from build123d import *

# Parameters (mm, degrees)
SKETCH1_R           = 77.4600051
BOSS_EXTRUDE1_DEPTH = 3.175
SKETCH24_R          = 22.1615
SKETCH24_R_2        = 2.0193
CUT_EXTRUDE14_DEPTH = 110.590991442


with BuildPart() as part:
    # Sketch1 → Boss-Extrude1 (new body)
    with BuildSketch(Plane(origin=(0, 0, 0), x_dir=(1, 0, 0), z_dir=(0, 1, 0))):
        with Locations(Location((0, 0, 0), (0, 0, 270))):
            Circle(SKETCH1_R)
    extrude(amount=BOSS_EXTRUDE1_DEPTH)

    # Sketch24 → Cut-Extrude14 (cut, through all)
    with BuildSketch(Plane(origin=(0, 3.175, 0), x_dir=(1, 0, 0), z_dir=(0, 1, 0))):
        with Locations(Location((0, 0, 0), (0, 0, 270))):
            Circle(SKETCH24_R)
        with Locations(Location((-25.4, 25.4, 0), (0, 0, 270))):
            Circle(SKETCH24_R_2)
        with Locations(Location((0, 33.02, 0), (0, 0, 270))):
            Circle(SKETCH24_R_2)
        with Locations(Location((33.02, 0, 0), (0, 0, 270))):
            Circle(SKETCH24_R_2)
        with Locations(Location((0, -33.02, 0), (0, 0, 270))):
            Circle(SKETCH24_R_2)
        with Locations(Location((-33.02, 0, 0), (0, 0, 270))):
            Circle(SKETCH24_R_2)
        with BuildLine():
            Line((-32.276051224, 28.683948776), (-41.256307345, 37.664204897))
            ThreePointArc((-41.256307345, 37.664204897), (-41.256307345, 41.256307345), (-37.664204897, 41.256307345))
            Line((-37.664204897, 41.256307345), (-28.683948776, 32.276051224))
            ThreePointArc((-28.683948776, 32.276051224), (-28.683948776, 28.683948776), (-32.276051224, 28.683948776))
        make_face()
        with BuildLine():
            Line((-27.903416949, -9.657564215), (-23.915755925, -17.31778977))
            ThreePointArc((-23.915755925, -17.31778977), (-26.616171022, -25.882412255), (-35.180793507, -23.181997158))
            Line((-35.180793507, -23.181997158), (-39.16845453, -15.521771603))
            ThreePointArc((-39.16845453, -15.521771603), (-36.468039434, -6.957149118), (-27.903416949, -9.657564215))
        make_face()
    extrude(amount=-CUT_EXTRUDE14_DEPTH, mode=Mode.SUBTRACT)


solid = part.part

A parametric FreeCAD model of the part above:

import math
import FreeCAD as App
import Part
import Sketcher
from FreeCAD import Vector
Q = App.Units.Quantity

doc = App.newDocument("Part")
params = doc.addObject("Spreadsheet::Sheet", "Params")
for row, (alias, value) in enumerate([
    ("pad1_length", "0.125 in"),
    ("sketch2_radius", "0.1 in"),
    ("sketch2_radius2", "0.25 in"),
    ("sketch2_diameter", "1.745 in"),
    ("sketch2_diameter2", "0.159 in"),
    ("sketch2_length", "0.5 in"),
], start=1):
    params.set(f"A{row}", alias)
    params.set(f"B{row}", "=" + value)
    params.setAlias(f"B{row}", alias)

body = doc.addObject("PartDesign::Body", "Body")

# Sketch on XZ plane
sketch1 = body.newObject("Sketcher::SketchObject", "Sketch")
sketch1.AttachmentSupport = (doc.getObject("XZ_Plane"), [""])
sketch1.MapMode = "FlatFace"
sketch1.addGeometry(Part.Circle(Vector(0, 0, 0), Vector(0, 0, 1), 77), False)
sketch1.addConstraint([
    Sketcher.Constraint("Coincident", 0, 3, -1, 1),
    Sketcher.Constraint("Diameter", 0, 154.92001),
])
pad1 = body.newObject("PartDesign::Pad", "Pad")
pad1.Profile = sketch1
pad1.setExpression("Length", "Params.pad1_length")
pad1.Reversed = True

# Sketch on XZ plane
sketch2 = body.newObject("Sketcher::SketchObject", "Sketch001")
sketch2.AttachmentSupport = (doc.getObject("XZ_Plane"), [""])
sketch2.MapMode = "FlatFace"
sketch2.AttachmentOffset = App.Placement(Vector(0, 0, -0.125 * 25.4), App.Rotation())
sketch2.addGeometry([
    Part.Circle(Vector(0, 0, 0), Vector(0, 0, 1), 22.2),  # 0
    Part.Circle(Vector(-25.4, -25.4, 0), Vector(0, 0, 1), 2),  # 1
    Part.Circle(Vector(0, -33, 0), Vector(0, 0, 1), 2),  # 2
    Part.Circle(Vector(33, 0, 0), Vector(0, 0, 1), 2),  # 3
    Part.Circle(Vector(0, 33, 0), Vector(0, 0, 1), 2),  # 4
    Part.Circle(Vector(-33, 0, 0), Vector(0, 0, 1), 2),  # 5
    Part.LineSegment(Vector(-41.3, -37.7, 0), Vector(-32.3, -28.7, 0)),  # 6
    Part.ArcOfCircle(Part.Circle(Vector(-30.5, -30.5, 0), Vector(0, 0, 1), 2.5), math.radians(-45), math.radians(135)),  # 7
    Part.LineSegment(Vector(-28.7, -32.3, 0), Vector(-37.7, -41.3, 0)),  # 8
    Part.ArcOfCircle(Part.Circle(Vector(-39.5, -39.5, 0), Vector(0, 0, 1), 2.5), math.radians(135), math.radians(315)),  # 9
    Part.LineSegment(Vector(-23.9, 17.3, 0), Vector(-27.9, 9.7, 0)),  # 10
    Part.ArcOfCircle(Part.Circle(Vector(-33.5, 12.6, 0), Vector(0, 0, 1), 6.3), math.radians(152), math.radians(333)),  # 11
    Part.LineSegment(Vector(-39.2, 15.5, 0), Vector(-35.2, 23.2, 0)),  # 12
    Part.ArcOfCircle(Part.Circle(Vector(-29.5, 20.2, 0), Vector(0, 0, 1), 6.3), math.radians(-27), math.radians(153)),  # 13
], False)
sketch2.addConstraint([
    Sketcher.Constraint("Tangent", 6, 2, 7, 2),
    Sketcher.Constraint("Tangent", 7, 1, 8, 1),
    Sketcher.Constraint("Tangent", 8, 2, 9, 2),
    Sketcher.Constraint("Tangent", 9, 1, 6, 1),
    Sketcher.Constraint("Tangent", 10, 2, 11, 2),
    Sketcher.Constraint("Tangent", 11, 1, 12, 1),
    Sketcher.Constraint("Tangent", 12, 2, 13, 2),
    Sketcher.Constraint("Tangent", 13, 1, 10, 1),
    Sketcher.Constraint("Coincident", 0, 3, -1, 1),
    Sketcher.Constraint("Equal", 1, 2),
    Sketcher.Constraint("Equal", 2, 3),
    Sketcher.Constraint("Equal", 3, 4),
    Sketcher.Constraint("Equal", 4, 5),
    Sketcher.Constraint("Equal", 7, 9),
    Sketcher.Constraint("Equal", 11, 13),
    Sketcher.Constraint("Symmetric", 2, 3, 4, 3, -1, 1),
    Sketcher.Constraint("Symmetric", 3, 3, 5, 3, -1, 1),
    Sketcher.Constraint("PointOnObject", 2, 3, -2),
    Sketcher.Constraint("PointOnObject", 3, 3, -1),
    Sketcher.Constraint("Radius", 7, Q("0.1 in")),
    Sketcher.Constraint("Radius", 11, Q("0.25 in")),
    Sketcher.Constraint("Diameter", 0, Q("1.745 in")),
    Sketcher.Constraint("Diameter", 1, Q("0.159 in")),
    Sketcher.Constraint("DistanceX", 1, 3, -1, 1, Q("1 in")),
    Sketcher.Constraint("DistanceY", 1, 3, -1, 1, Q("1 in")),
    Sketcher.Constraint("Angle", 6, Q("45 deg")),
    Sketcher.Constraint("Distance", 6, Q("0.5 in")),
    Sketcher.Constraint("DistanceY", 2, 3, -1, 1, Q("1.3 in")),
    Sketcher.Constraint("DistanceX", -1, 1, 3, 3, Q("1.3 in")),
    Sketcher.Constraint("DistanceX", 7, 3, -1, 1, Q("1.2 in")),
    Sketcher.Constraint("DistanceY", 7, 3, -1, 1, Q("1.2 in")),
    Sketcher.Constraint("Angle", 10, Q("-117.5 deg")),
    Sketcher.Constraint("Distance", 10, Q("0.34 in")),
    Sketcher.Constraint("DistanceY", -1, 1, 11, 1, 15.521772),
    Sketcher.Constraint("DistanceX", 11, 3, -1, 1, 33.535936),
])
sketch2.setExpression("Constraints[19]", "Params.sketch2_radius")
sketch2.setExpression("Constraints[20]", "Params.sketch2_radius2")
sketch2.setExpression("Constraints[21]", "Params.sketch2_diameter")
sketch2.setExpression("Constraints[22]", "Params.sketch2_diameter2")
sketch2.setExpression("Constraints[26]", "Params.sketch2_length")
pocket1 = body.newObject("PartDesign::Pocket", "Pocket")
pocket1.Profile = sketch2
pocket1.Type = "ThroughAll"
pocket1.Reversed = True

doc.recompute()
